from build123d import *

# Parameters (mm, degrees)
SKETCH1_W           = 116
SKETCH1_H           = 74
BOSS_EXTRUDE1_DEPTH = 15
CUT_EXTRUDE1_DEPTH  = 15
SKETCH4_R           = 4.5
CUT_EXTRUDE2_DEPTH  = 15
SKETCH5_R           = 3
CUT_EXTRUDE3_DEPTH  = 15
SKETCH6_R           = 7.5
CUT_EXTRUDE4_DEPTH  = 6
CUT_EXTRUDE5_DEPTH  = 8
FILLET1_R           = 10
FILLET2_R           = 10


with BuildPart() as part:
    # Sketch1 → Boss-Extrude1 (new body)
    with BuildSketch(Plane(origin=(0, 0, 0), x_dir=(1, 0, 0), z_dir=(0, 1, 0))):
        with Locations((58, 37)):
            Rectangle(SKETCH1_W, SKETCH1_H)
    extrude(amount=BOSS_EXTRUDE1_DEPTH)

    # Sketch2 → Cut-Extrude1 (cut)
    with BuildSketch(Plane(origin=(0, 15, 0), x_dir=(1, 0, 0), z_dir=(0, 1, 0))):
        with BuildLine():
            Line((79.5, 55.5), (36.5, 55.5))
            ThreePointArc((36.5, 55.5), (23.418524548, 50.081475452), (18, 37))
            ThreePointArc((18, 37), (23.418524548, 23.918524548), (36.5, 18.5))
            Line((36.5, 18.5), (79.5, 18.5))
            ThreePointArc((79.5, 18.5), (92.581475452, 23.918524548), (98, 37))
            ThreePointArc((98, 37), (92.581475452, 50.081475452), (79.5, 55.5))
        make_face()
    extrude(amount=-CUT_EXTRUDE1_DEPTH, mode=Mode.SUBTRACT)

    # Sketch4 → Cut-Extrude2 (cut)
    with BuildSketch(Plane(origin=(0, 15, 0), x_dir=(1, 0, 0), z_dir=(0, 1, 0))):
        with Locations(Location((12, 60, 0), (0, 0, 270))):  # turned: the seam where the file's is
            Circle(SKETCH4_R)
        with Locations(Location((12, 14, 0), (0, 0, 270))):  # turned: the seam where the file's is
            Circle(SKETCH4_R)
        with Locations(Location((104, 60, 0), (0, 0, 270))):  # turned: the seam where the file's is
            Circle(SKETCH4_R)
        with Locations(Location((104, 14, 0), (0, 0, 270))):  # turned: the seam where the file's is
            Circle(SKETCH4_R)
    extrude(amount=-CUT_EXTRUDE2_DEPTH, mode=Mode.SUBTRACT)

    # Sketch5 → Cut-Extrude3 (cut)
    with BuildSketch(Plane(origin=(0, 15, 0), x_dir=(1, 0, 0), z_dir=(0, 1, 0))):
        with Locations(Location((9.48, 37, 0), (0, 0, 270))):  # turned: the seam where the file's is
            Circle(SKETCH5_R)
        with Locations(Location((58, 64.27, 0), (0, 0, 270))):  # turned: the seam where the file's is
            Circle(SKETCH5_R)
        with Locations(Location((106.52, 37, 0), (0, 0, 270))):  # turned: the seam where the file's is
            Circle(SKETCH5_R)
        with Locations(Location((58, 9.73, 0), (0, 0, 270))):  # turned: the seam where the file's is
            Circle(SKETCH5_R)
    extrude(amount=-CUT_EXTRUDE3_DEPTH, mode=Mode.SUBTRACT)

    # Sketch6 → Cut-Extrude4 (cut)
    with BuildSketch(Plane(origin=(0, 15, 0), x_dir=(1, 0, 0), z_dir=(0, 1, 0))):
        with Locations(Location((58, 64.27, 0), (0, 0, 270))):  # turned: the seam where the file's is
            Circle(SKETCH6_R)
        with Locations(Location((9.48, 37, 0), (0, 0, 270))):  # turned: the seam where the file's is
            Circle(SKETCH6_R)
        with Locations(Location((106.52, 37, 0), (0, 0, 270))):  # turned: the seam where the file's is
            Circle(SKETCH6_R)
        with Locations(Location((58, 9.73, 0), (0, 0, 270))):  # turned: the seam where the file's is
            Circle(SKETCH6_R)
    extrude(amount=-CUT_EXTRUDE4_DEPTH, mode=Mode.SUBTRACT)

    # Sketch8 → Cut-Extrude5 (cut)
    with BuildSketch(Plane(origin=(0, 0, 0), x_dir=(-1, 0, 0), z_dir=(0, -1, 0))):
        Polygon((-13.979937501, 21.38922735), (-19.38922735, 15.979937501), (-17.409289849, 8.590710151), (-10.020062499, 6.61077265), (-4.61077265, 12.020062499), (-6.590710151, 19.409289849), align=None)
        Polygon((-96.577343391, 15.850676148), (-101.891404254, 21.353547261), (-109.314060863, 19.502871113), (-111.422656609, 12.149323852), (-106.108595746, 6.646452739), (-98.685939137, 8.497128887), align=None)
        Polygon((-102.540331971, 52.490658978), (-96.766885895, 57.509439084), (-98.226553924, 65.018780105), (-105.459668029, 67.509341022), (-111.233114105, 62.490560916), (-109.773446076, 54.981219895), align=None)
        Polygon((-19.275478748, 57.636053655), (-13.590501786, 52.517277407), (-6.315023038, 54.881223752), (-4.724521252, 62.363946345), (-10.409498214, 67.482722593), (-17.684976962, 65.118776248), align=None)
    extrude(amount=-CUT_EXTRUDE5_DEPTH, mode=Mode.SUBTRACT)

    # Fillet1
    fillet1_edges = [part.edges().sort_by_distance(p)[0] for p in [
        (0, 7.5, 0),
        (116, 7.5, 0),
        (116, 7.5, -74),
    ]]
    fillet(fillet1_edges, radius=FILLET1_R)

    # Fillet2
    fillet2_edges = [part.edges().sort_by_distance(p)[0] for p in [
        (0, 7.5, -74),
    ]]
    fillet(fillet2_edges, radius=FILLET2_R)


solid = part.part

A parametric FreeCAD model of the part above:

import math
import FreeCAD as App
import Part
import Sketcher
from FreeCAD import Vector
Q = App.Units.Quantity


def edges_at(feature, points):
    """Names of the edges that pass closest to the given points."""
    edges = feature.Shape.Edges
    near = lambda p: min(range(len(edges)), key=lambda i: edges[i].distToShape(Part.Vertex(*p))[0])
    return sorted({f"Edge{near(p) + 1}" for p in points})

doc = App.newDocument("Part")
body = doc.addObject("PartDesign::Body", "Body")

sketch1 = doc.addObject("Sketcher::SketchObject", "Sketch")
body.addObject(sketch1)
sketch1.AttachmentSupport = (doc.XZ_Plane, [""])
sketch1.MapMode = "FlatFace"
sketch1.addGeometry([
    Part.LineSegment(Vector(0, -74, 0), Vector(0, 0, 0)),
    Part.LineSegment(Vector(0, 0, 0), Vector(116, 0, 0)),
    Part.LineSegment(Vector(116, 0, 0), Vector(116, -74, 0)),
    Part.LineSegment(Vector(116, -74, 0), Vector(0, -74, 0)),
], False)
sketch1.addConstraint([
    Sketcher.Constraint("Coincident", 0, 2, 1, 1),
    Sketcher.Constraint("Coincident", 1, 2, 2, 1),
    Sketcher.Constraint("Coincident", 2, 2, 3, 1),
    Sketcher.Constraint("Coincident", 3, 2, 0, 1),
    Sketcher.Constraint("Vertical", 0),
    Sketcher.Constraint("Horizontal", 1),
    Sketcher.Constraint("Vertical", 2),
    Sketcher.Constraint("Horizontal", 3),
    Sketcher.Constraint("Coincident", 0, 2, -1, 1),
    Sketcher.Constraint("DistanceX", 1, 1, 1, 2, 116.0),
    Sketcher.Constraint("DistanceY", 0, 1, 0, 2, 74.0),
])
pad1 = doc.addObject("PartDesign::Pad", "Pad")
body.addObject(pad1)
pad1.Profile = sketch1
pad1.Length = 15
pad1.Reversed = True

sketch2 = doc.addObject("Sketcher::SketchObject", "Sketch001")
body.addObject(sketch2)
sketch2.AttachmentSupport = (doc.XZ_Plane, [""])
sketch2.MapMode = "FlatFace"
sketch2.AttachmentOffset = App.Placement(Vector(0, 0, -15), App.Rotation())
sketch2.addGeometry([
    Part.LineSegment(Vector(80, -56, 0), Vector(36, -56, 0)),
    Part.ArcOfCircle(Part.Circle(Vector(36, -37, 0), Vector(0, 0, 1), 18), math.radians(180), math.radians(270)),
    Part.ArcOfCircle(Part.Circle(Vector(36, -37, 0), Vector(0, 0, 1), 18), math.radians(90), math.radians(180)),
    Part.LineSegment(Vector(36, -18, 0), Vector(80, -18, 0)),
    Part.ArcOfCircle(Part.Circle(Vector(80, -37, 0), Vector(0, 0, 1), 18), math.radians(0), math.radians(90)),
    Part.ArcOfCircle(Part.Circle(Vector(80, -37, 0), Vector(0, 0, 1), 18), math.radians(-90), math.radians(0)),
], False)
sketch2.addConstraint([
    Sketcher.Constraint("Tangent", 0, 2, 1, 2),
    Sketcher.Constraint("Tangent", 1, 1, 2, 2),
    Sketcher.Constraint("Tangent", 2, 1, 3, 1),
    Sketcher.Constraint("Tangent", 3, 2, 4, 2),
    Sketcher.Constraint("Tangent", 4, 1, 5, 2),
    Sketcher.Constraint("Tangent", 5, 1, 0, 1),
    Sketcher.Constraint("Horizontal", 0),
    Sketcher.Constraint("Horizontal", 3),
    Sketcher.Constraint("Equal", 1, 2),
    Sketcher.Constraint("Equal", 2, 4),
    Sketcher.Constraint("Horizontal", 5, 3, 1, 1),
    Sketcher.Constraint("Horizontal", 1, 1, 4, 1),
    Sketcher.Constraint("Radius", 1, 18.5),
    Sketcher.Constraint("DistanceX", 0, 2, 0, 1, 43.0),
    Sketcher.Constraint("DistanceY", 1, 3, -1, 1, 37.0),
    Sketcher.Constraint("DistanceX", -1, 1, 1, 1, 18.0),
])
pocket1 = doc.addObject("PartDesign::Pocket", "Pocket")
body.addObject(pocket1)
pocket1.Profile = sketch2
pocket1.Length = 15
pocket1.Reversed = True

sketch3 = doc.addObject("Sketcher::SketchObject", "Sketch002")
body.addObject(sketch3)
sketch3.AttachmentSupport = (doc.XZ_Plane, [""])
sketch3.MapMode = "FlatFace"
sketch3.AttachmentOffset = App.Placement(Vector(0, 0, -15), App.Rotation())
sketch3.addGeometry([
    Part.Circle(Vector(12, -60, 0), Vector(0, 0, 1), 4.5),
    Part.Circle(Vector(12, -14, 0), Vector(0, 0, 1), 4.5),
    Part.Circle(Vector(104, -60, 0), Vector(0, 0, 1), 4.5),
    Part.Circle(Vector(104, -14, 0), Vector(0, 0, 1), 4.5),
], False)
sketch3.addConstraint([
    Sketcher.Constraint("Equal", 0, 1),
    Sketcher.Constraint("Equal", 1, 2),
    Sketcher.Constraint("Equal", 2, 3),
    Sketcher.Constraint("Horizontal", 0, 3, 2, 3),
    Sketcher.Constraint("Horizontal", 1, 3, 3, 3),
    Sketcher.Constraint("Vertical", 0, 3, 1, 3),
    Sketcher.Constraint("Vertical", 2, 3, 3, 3),
    Sketcher.Constraint("Diameter", 0, 9.0),
    Sketcher.Constraint("DistanceX", -1, 1, 0, 3, 12.0),
    Sketcher.Constraint("DistanceY", 0, 3, -1, 1, 60.0),
    Sketcher.Constraint("DistanceY", 1, 3, -1, 1, 14.0),
    Sketcher.Constraint("DistanceX", -1, 1, 2, 3, 104.0),
])
pocket2 = doc.addObject("PartDesign::Pocket", "Pocket001")
body.addObject(pocket2)
pocket2.Profile = sketch3
pocket2.Length = 15
pocket2.Reversed = True

sketch4 = doc.addObject("Sketcher::SketchObject", "Sketch003")
body.addObject(sketch4)
sketch4.AttachmentSupport = (doc.XZ_Plane, [""])
sketch4.MapMode = "FlatFace"
sketch4.AttachmentOffset = App.Placement(Vector(0, 0, -15), App.Rotation())
sketch4.addGeometry([
    Part.Circle(Vector(9.5, -37, 0), Vector(0, 0, 1), 3),
    Part.Circle(Vector(58, -64.3, 0), Vector(0, 0, 1), 3),
    Part.Circle(Vector(106.5, -37, 0), Vector(0, 0, 1), 3),
    Part.Circle(Vector(58, -9.7, 0), Vector(0, 0, 1), 3),
], False)
sketch4.addConstraint([
    Sketcher.Constraint("Equal", 0, 1),
    Sketcher.Constraint("Equal", 1, 2),
    Sketcher.Constraint("Equal", 2, 3),
    Sketcher.Constraint("Horizontal", 0, 3, 2, 3),
    Sketcher.Constraint("Vertical", 1, 3, 3, 3),
    Sketcher.Constraint("Diameter", 0, 6.0),
    Sketcher.Constraint("DistanceY", 0, 3, -1, 1, 37.0),
    Sketcher.Constraint("DistanceX", -1, 1, 1, 3, 58.0),
    Sketcher.Constraint("DistanceX", -1, 1, 0, 3, 9.48),
    Sketcher.Constraint("DistanceY", 1, 3, -1, 1, 64.27),
    Sketcher.Constraint("DistanceX", -1, 1, 2, 3, 106.52),
    Sketcher.Constraint("DistanceY", 3, 3, -1, 1, 9.73),
])
pocket3 = doc.addObject("PartDesign::Pocket", "Pocket002")
body.addObject(pocket3)
pocket3.Profile = sketch4
pocket3.Length = 15
pocket3.Reversed = True

sketch5 = doc.addObject("Sketcher::SketchObject", "Sketch004")
body.addObject(sketch5)
sketch5.AttachmentSupport = (doc.XZ_Plane, [""])
sketch5.MapMode = "FlatFace"
sketch5.AttachmentOffset = App.Placement(Vector(0, 0, -15), App.Rotation())
sketch5.addGeometry([
    Part.Circle(Vector(58, -64, 0), Vector(0, 0, 1), 8),
    Part.Circle(Vector(9, -37, 0), Vector(0, 0, 1), 8),
    Part.Circle(Vector(107, -37, 0), Vector(0, 0, 1), 8),
    Part.Circle(Vector(58, -10, 0), Vector(0, 0, 1), 8),
], False)
sketch5.addConstraint([
    Sketcher.Constraint("Equal", 0, 1),
    Sketcher.Constraint("Equal", 1, 2),
    Sketcher.Constraint("Equal", 2, 3),
    Sketcher.Constraint("Horizontal", 1, 3, 2, 3),
    Sketcher.Constraint("Vertical", 0, 3, 3, 3),
    Sketcher.Constraint("Diameter", 0, 15.0),
    Sketcher.Constraint("DistanceX", -1, 1, 0, 3, 58.0),
    Sketcher.Constraint("DistanceY", 1, 3, -1, 1, 37.0),
    Sketcher.Constraint("DistanceY", 0, 3, -1, 1, 64.27),
    Sketcher.Constraint("DistanceX", -1, 1, 1, 3, 9.48),
    Sketcher.Constraint("DistanceX", -1, 1, 2, 3, 106.52),
    Sketcher.Constraint("DistanceY", 3, 3, -1, 1, 9.73),
])
pocket4 = doc.addObject("PartDesign::Pocket", "Pocket003")
body.addObject(pocket4)
pocket4.Profile = sketch5
pocket4.Length = 6
pocket4.Reversed = True

sketch6 = doc.addObject("Sketcher::SketchObject", "Sketch005")
body.addObject(sketch6)
sketch6.AttachmentSupport = (doc.XZ_Plane, [""])
sketch6.MapMode = "FlatFace"
sketch6.addGeometry([
    Part.LineSegment(Vector(14, -21, 0), Vector(19, -16, 0)),
    Part.LineSegment(Vector(19, -16, 0), Vector(17, -9, 0)),
    Part.LineSegment(Vector(17, -9, 0), Vector(10, -7, 0)),
    Part.LineSegment(Vector(10, -7, 0), Vector(5, -12, 0)),
    Part.LineSegment(Vector(5, -12, 0), Vector(7, -19, 0)),
    Part.LineSegment(Vector(7, -19, 0), Vector(14, -21, 0)),
    Part.LineSegment(Vector(97, -16, 0), Vector(102, -21, 0)),
    Part.LineSegment(Vector(102, -21, 0), Vector(109, -20, 0)),
    Part.LineSegment(Vector(109, -20, 0), Vector(111, -12, 0)),
    Part.LineSegment(Vector(111, -12, 0), Vector(106, -7, 0)),
    Part.LineSegment(Vector(106, -7, 0), Vector(99, -8, 0)),
    Part.LineSegment(Vector(99, -8, 0), Vector(97, -16, 0)),
    Part.LineSegment(Vector(103, -52, 0), Vector(97, -58, 0)),
    Part.LineSegment(Vector(97, -58, 0), Vector(98, -65, 0)),
    Part.LineSegment(Vector(98, -65, 0), Vector(105, -68, 0)),
    Part.LineSegment(Vector(105, -68, 0), Vector(111, -62, 0)),
    Part.LineSegment(Vector(111, -62, 0), Vector(110, -55, 0)),
    Part.LineSegment(Vector(110, -55, 0), Vector(103, -52, 0)),
    Part.LineSegment(Vector(19, -58, 0), Vector(14, -53, 0)),
    Part.LineSegment(Vector(14, -53, 0), Vector(6, -55, 0)),
    Part.LineSegment(Vector(6, -55, 0), Vector(5, -62, 0)),
    Part.LineSegment(Vector(5, -62, 0), Vector(10, -67, 0)),
    Part.LineSegment(Vector(10, -67, 0), Vector(18, -65, 0)),
    Part.LineSegment(Vector(18, -65, 0), Vector(19, -58, 0)),
], False)
sketch6.addConstraint([
    Sketcher.Constraint("Coincident", 0, 2, 1, 1),
    Sketcher.Constraint("Coincident", 1, 2, 2, 1),
    Sketcher.Constraint("Coincident", 2, 2, 3, 1),
    Sketcher.Constraint("Coincident", 3, 2, 4, 1),
    Sketcher.Constraint("Coincident", 4, 2, 5, 1),
    Sketcher.Constraint("Coincident", 5, 2, 0, 1),
    Sketcher.Constraint("Coincident", 6, 2, 7, 1),
    Sketcher.Constraint("Coincident", 7, 2, 8, 1),
    Sketcher.Constraint("Coincident", 8, 2, 9, 1),
    Sketcher.Constraint("Coincident", 9, 2, 10, 1),
    Sketcher.Constraint("Coincident", 10, 2, 11, 1),
    Sketcher.Constraint("Coincident", 11, 2, 6, 1),
    Sketcher.Constraint("Coincident", 12, 2, 13, 1),
    Sketcher.Constraint("Coincident", 13, 2, 14, 1),
    Sketcher.Constraint("Coincident", 14, 2, 15, 1),
    Sketcher.Constraint("Coincident", 15, 2, 16, 1),
    Sketcher.Constraint("Coincident", 16, 2, 17, 1),
    Sketcher.Constraint("Coincident", 17, 2, 12, 1),
    Sketcher.Constraint("Coincident", 18, 2, 19, 1),
    Sketcher.Constraint("Coincident", 19, 2, 20, 1),
    Sketcher.Constraint("Coincident", 20, 2, 21, 1),
    Sketcher.Constraint("Coincident", 21, 2, 22, 1),
    Sketcher.Constraint("Coincident", 22, 2, 23, 1),
    Sketcher.Constraint("Coincident", 23, 2, 18, 1),
    Sketcher.Constraint("Parallel", 0, 3),
    Sketcher.Constraint("Parallel", 1, 4),
    Sketcher.Constraint("Parallel", 2, 5),
    Sketcher.Constraint("Parallel", 6, 9),
    Sketcher.Constraint("Parallel", 7, 10),
    Sketcher.Constraint("Parallel", 8, 11),
    Sketcher.Constraint("Parallel", 12, 15),
    Sketcher.Constraint("Parallel", 13, 16),
    Sketcher.Constraint("Parallel", 14, 17),
    Sketcher.Constraint("Parallel", 18, 21),
    Sketcher.Constraint("Parallel", 19, 22),
    Sketcher.Constraint("Parallel", 20, 23),
    Sketcher.Constraint("Equal", 0, 1),
    Sketcher.Constraint("Equal", 1, 2),
    Sketcher.Constraint("Equal", 2, 3),
    Sketcher.Constraint("Equal", 5, 6),
    Sketcher.Constraint("Equal", 6, 7),
    Sketcher.Constraint("Equal", 7, 8),
    Sketcher.Constraint("Equal", 8, 9),
    Sketcher.Constraint("Equal", 11, 12),
    Sketcher.Constraint("Equal", 12, 13),
    Sketcher.Constraint("Equal", 13, 14),
    Sketcher.Constraint("Equal", 14, 15),
    Sketcher.Constraint("Equal", 17, 18),
    Sketcher.Constraint("Equal", 18, 19),
    Sketcher.Constraint("Equal", 19, 20),
    Sketcher.Constraint("Equal", 20, 21),
    Sketcher.Constraint("Angle", 0, Q("45 deg")),
    Sketcher.Constraint("Angle", 1, Q("105 deg")),
    Sketcher.Constraint("Angle", 2, Q("165 deg")),
    Sketcher.Constraint("Angle", 6, Q("-46 deg")),
    Sketcher.Constraint("Angle", 7, Q("14 deg")),
    Sketcher.Constraint("Angle", 8, Q("74 deg")),
    Sketcher.Constraint("Angle", 12, Q("-139 deg")),
    Sketcher.Constraint("Angle", 13, Q("-79 deg")),
    Sketcher.Constraint("Angle", 14, Q("-19 deg")),
    Sketcher.Constraint("Angle", 18, Q("138 deg")),
    Sketcher.Constraint("Angle", 19, Q("-162 deg")),
    Sketcher.Constraint("Angle", 20, Q("-102 deg")),
    Sketcher.Constraint("DistanceX", 2, 2, 7, 2, 99.293998),
    Sketcher.Constraint("DistanceX", -1, 1, 18, 2, 13.590502),
    Sketcher.Constraint("DistanceX", -1, 1, 21, 2, 10.409498),
    Sketcher.Constraint("DistanceY", 7, 2, 2, 2, 12.892098),
    Sketcher.Constraint("DistanceX", -1, 1, 1, 2, 17.40929),
    Sketcher.Constraint("DistanceY", 1, 2, -1, 1, 8.59071),
    Sketcher.Constraint("DistanceY", 12, 2, -1, 1, 57.509439),
    Sketcher.Constraint("DistanceX", -1, 1, 14, 2, 105.459668),
    Sketcher.Constraint("DistanceY", 18, 2, 5, 2, 31.12805),
])
pocket5 = doc.addObject("PartDesign::Pocket", "Pocket004")
body.addObject(pocket5)
pocket5.Profile = sketch6
pocket5.Length = 8
doc.recompute()

fillet = doc.addObject("PartDesign::Fillet", "Fillet")
body.addObject(fillet)
fillet.Base = (pocket5, edges_at(pocket5, [(0, 7.5, 0), (116, 7.5, 0), (116, 7.5, -74)]))
fillet.Radius = 10
doc.recompute()

fillet2 = doc.addObject("PartDesign::Fillet", "Fillet001")
body.addObject(fillet2)
fillet2.Base = (fillet, edges_at(fillet, [(0, 7.5, -74)]))
fillet2.Radius = 10

doc.recompute()
